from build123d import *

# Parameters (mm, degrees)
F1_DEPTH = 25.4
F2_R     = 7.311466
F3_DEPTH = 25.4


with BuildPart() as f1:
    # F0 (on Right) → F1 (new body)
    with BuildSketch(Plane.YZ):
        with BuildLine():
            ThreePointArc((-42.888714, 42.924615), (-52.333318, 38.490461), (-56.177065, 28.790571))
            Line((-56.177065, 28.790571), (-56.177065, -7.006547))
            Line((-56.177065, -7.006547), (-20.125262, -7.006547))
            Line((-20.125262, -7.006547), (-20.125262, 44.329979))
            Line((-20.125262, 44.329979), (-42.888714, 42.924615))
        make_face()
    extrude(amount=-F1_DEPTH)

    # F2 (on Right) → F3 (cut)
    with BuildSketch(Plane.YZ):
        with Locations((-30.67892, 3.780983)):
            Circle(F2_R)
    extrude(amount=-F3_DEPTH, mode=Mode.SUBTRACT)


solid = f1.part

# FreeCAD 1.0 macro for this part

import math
import FreeCAD as App
import Part
import Sketcher
Q = App.Units.Quantity

doc = App.newDocument("Part")
body = doc.addObject("PartDesign::Body", "Body")

# Sketch on YZ plane
sketch1 = body.newObject("Sketcher::SketchObject", "Sketch")
sketch1.AttachmentSupport = (doc.getObject("YZ_Plane"), [""])
sketch1.MapMode = "FlatFace"
sketch1.addGeometry(Part.ArcOfCircle(Part.Circle(App.Vector(-42.016111, 28.790571, 0), App.Vector(0, 0, 1), 14.160954), math.radians(93.532826), math.radians(180.000001)), False)
sketch1.addGeometry(Part.LineSegment(App.Vector(-56.177065, 28.790571, 0), App.Vector(-56.177065, -7.006547, 0)), False)
sketch1.addGeometry(Part.LineSegment(App.Vector(-56.177065, -7.006547, 0), App.Vector(-20.125262, -7.006547, 0)), False)
sketch1.addGeometry(Part.LineSegment(App.Vector(-20.125262, -7.006547, 0), App.Vector(-20.125262, 44.329979, 0)), False)
sketch1.addGeometry(Part.LineSegment(App.Vector(-20.125262, 44.329979, 0), App.Vector(-42.888714, 42.924615, 0)), False)
sketch1.addConstraint(Sketcher.Constraint("Tangent", 0, 2, 1, 1))
sketch1.addConstraint(Sketcher.Constraint("Coincident", 1, 2, 2, 1))
sketch1.addConstraint(Sketcher.Constraint("Coincident", 2, 2, 3, 1))
sketch1.addConstraint(Sketcher.Constraint("Coincident", 3, 2, 4, 1))
sketch1.addConstraint(Sketcher.Constraint("Tangent", 4, 2, 0, 1))
sketch1.addConstraint(Sketcher.Constraint("Vertical", 1))
sketch1.addConstraint(Sketcher.Constraint("Horizontal", 2))
sketch1.addConstraint(Sketcher.Constraint("Vertical", 3))
sketch1.addConstraint(Sketcher.Constraint("Radius", 0, 14.160954))
sketch1.addConstraint(Sketcher.Constraint("DistanceX", 2, 1, 2, 2, 36.051803))
sketch1.addConstraint(Sketcher.Constraint("DistanceY", 1, 2, 1, 1, 35.797118))
sketch1.addConstraint(Sketcher.Constraint("DistanceY", 3, 1, 3, 2, 51.336526))
sketch1.addConstraint(Sketcher.Constraint("DistanceX", 0, 3, -1, 1, 42.016111))
sketch1.addConstraint(Sketcher.Constraint("DistanceY", -1, 1, 0, 3, 28.790571))
pad1 = body.newObject("PartDesign::Pad", "Pad")
pad1.Profile = sketch1
pad1.Length = Q("1 in")
pad1.Reversed = True

# Sketch on YZ plane
sketch2 = body.newObject("Sketcher::SketchObject", "Sketch001")
sketch2.AttachmentSupport = (doc.getObject("YZ_Plane"), [""])
sketch2.MapMode = "FlatFace"
sketch2.addGeometry(Part.Circle(App.Vector(-30.67892, 3.780983, 0), App.Vector(0, 0, 1), 7.311466), False)
sketch2.addConstraint(Sketcher.Constraint("Diameter", 0, 14.622932))
sketch2.addConstraint(Sketcher.Constraint("DistanceX", 0, 3, -1, 1, 30.67892))
sketch2.addConstraint(Sketcher.Constraint("DistanceY", -1, 1, 0, 3, 3.780983))
pocket1 = body.newObject("PartDesign::Pocket", "Pocket")
pocket1.Profile = sketch2
pocket1.Length = Q("1 in")

doc.recompute()
